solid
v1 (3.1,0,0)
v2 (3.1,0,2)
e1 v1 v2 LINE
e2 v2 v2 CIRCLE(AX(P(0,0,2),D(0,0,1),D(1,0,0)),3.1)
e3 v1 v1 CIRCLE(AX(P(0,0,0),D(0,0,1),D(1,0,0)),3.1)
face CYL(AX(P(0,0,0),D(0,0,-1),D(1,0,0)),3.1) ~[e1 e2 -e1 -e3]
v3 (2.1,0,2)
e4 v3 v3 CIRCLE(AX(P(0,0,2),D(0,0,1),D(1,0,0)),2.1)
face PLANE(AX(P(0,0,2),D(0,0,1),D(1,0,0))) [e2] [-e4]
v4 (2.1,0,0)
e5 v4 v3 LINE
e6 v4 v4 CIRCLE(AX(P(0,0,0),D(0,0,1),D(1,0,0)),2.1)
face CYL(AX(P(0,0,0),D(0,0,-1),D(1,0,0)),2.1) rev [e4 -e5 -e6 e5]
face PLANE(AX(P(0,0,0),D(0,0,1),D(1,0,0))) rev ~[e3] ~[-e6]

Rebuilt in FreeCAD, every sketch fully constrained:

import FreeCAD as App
import Part
import Sketcher

doc = App.newDocument("Part")
params = doc.addObject("Spreadsheet::Sheet", "Params")
for row, (alias, value) in enumerate([
    ("sketch1_diameter", "4.2 mm"),
    ("sketch1_diameter2", "6.2 mm"),
    ("pad1_length", "2 mm"),
], start=1):
    params.set(f"A{row}", alias)
    params.set(f"B{row}", "=" + value)
    params.setAlias(f"B{row}", alias)

body = doc.addObject("PartDesign::Body", "Body")

sketch1 = body.newObject("Sketcher::SketchObject", "Sketch")
sketch1.AttachmentSupport = (doc.getObject("XY_Plane"), [""])
sketch1.MapMode = "FlatFace"
sketch1.addGeometry([
    Part.Circle(App.Vector(0, 0, 0), App.Vector(0, 0, 1), 3.1),
    Part.Circle(App.Vector(0, 0, 0), App.Vector(0, 0, 1), 2.1),
], False)
sketch1.addConstraint([
    Sketcher.Constraint("Coincident", 0, 3, -1, 1),
    Sketcher.Constraint("Coincident", 1, 3, -1, 1),
    Sketcher.Constraint("Diameter", 1, 4.2),
    Sketcher.Constraint("Diameter", 0, 6.2),
])
sketch1.setExpression("Constraints[2]", "Params.sketch1_diameter")
sketch1.setExpression("Constraints[3]", "Params.sketch1_diameter2")
pad1 = body.newObject("PartDesign::Pad", "Pad")
pad1.Profile = sketch1
pad1.setExpression("Length", "Params.pad1_length")

doc.recompute()
